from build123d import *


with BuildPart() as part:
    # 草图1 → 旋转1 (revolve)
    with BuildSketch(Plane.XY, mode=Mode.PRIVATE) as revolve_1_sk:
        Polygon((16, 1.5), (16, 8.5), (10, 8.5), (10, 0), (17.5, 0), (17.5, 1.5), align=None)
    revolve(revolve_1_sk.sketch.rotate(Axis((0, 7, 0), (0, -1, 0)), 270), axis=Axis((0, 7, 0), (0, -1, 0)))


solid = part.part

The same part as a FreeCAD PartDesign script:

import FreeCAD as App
import Part
import Sketcher
from FreeCAD import Vector
Q = App.Units.Quantity

doc = App.newDocument("Part")
params = doc.addObject("Spreadsheet::Sheet", "Params")
for row, (alias, value) in enumerate([
    ("sketch1_width", "6 mm"),
    ("sketch1_height", "7 mm"),
    ("sketch1_width2", "7.5 mm"),
    ("revolution_angle", "360 deg"),
], start=1):
    params.set(f"A{row}", alias)
    params.set(f"B{row}", "=" + value)
    params.setAlias(f"B{row}", alias)

body = doc.addObject("PartDesign::Body", "Body")

# Sketch on XY plane
sketch1 = body.newObject("Sketcher::SketchObject", "Sketch")
sketch1.AttachmentSupport = (doc.getObject("XY_Plane"), [""])
sketch1.MapMode = "FlatFace"
sketch1.addGeometry([
    Part.LineSegment(Vector(16, 1.5, 0), Vector(16, 8.5, 0)),  # 0
    Part.LineSegment(Vector(16, 8.5, 0), Vector(10, 8.5, 0)),  # 1
    Part.LineSegment(Vector(10, 8.5, 0), Vector(10, 0, 0)),  # 2
    Part.LineSegment(Vector(10, 0, 0), Vector(17.5, 0, 0)),  # 3
    Part.LineSegment(Vector(17.5, 0, 0), Vector(17.5, 1.5, 0)),  # 4
    Part.LineSegment(Vector(17.5, 1.5, 0), Vector(16, 1.5, 0)),  # 5
], False)
sketch1.addConstraint([
    Sketcher.Constraint("Coincident", 0, 2, 1, 1),
    Sketcher.Constraint("Coincident", 1, 2, 2, 1),
    Sketcher.Constraint("Coincident", 2, 2, 3, 1),
    Sketcher.Constraint("Coincident", 3, 2, 4, 1),
    Sketcher.Constraint("Coincident", 4, 2, 5, 1),
    Sketcher.Constraint("Coincident", 5, 2, 0, 1),
    Sketcher.Constraint("Vertical", 0),
    Sketcher.Constraint("Horizontal", 1),
    Sketcher.Constraint("Vertical", 2),
    Sketcher.Constraint("Horizontal", 3),
    Sketcher.Constraint("Vertical", 4),
    Sketcher.Constraint("Horizontal", 5),
    Sketcher.Constraint("PointOnObject", 2, 2, -1),
    Sketcher.Constraint("Equal", 5, 4),
    Sketcher.Constraint("DistanceX", 1, 2, 1, 1, Q("6 mm")),
    Sketcher.Constraint("DistanceY", 0, 1, 0, 2, Q("7 mm")),
    Sketcher.Constraint("DistanceX", 3, 1, 3, 2, Q("7.5 mm")),
    Sketcher.Constraint("DistanceX", -1, 1, 0, 2, Q("16 mm")),
])
sketch1.setExpression("Constraints[14]", "Params.sketch1_width")
sketch1.setExpression("Constraints[15]", "Params.sketch1_height")
sketch1.setExpression("Constraints[16]", "Params.sketch1_width2")
revolution = body.newObject("PartDesign::Revolution", "Revolution")
revolution.Profile = sketch1
revolution.ReferenceAxis = (sketch1, ["V_Axis"])
revolution.setExpression("Angle", "Params.revolution_angle")

doc.recompute()
